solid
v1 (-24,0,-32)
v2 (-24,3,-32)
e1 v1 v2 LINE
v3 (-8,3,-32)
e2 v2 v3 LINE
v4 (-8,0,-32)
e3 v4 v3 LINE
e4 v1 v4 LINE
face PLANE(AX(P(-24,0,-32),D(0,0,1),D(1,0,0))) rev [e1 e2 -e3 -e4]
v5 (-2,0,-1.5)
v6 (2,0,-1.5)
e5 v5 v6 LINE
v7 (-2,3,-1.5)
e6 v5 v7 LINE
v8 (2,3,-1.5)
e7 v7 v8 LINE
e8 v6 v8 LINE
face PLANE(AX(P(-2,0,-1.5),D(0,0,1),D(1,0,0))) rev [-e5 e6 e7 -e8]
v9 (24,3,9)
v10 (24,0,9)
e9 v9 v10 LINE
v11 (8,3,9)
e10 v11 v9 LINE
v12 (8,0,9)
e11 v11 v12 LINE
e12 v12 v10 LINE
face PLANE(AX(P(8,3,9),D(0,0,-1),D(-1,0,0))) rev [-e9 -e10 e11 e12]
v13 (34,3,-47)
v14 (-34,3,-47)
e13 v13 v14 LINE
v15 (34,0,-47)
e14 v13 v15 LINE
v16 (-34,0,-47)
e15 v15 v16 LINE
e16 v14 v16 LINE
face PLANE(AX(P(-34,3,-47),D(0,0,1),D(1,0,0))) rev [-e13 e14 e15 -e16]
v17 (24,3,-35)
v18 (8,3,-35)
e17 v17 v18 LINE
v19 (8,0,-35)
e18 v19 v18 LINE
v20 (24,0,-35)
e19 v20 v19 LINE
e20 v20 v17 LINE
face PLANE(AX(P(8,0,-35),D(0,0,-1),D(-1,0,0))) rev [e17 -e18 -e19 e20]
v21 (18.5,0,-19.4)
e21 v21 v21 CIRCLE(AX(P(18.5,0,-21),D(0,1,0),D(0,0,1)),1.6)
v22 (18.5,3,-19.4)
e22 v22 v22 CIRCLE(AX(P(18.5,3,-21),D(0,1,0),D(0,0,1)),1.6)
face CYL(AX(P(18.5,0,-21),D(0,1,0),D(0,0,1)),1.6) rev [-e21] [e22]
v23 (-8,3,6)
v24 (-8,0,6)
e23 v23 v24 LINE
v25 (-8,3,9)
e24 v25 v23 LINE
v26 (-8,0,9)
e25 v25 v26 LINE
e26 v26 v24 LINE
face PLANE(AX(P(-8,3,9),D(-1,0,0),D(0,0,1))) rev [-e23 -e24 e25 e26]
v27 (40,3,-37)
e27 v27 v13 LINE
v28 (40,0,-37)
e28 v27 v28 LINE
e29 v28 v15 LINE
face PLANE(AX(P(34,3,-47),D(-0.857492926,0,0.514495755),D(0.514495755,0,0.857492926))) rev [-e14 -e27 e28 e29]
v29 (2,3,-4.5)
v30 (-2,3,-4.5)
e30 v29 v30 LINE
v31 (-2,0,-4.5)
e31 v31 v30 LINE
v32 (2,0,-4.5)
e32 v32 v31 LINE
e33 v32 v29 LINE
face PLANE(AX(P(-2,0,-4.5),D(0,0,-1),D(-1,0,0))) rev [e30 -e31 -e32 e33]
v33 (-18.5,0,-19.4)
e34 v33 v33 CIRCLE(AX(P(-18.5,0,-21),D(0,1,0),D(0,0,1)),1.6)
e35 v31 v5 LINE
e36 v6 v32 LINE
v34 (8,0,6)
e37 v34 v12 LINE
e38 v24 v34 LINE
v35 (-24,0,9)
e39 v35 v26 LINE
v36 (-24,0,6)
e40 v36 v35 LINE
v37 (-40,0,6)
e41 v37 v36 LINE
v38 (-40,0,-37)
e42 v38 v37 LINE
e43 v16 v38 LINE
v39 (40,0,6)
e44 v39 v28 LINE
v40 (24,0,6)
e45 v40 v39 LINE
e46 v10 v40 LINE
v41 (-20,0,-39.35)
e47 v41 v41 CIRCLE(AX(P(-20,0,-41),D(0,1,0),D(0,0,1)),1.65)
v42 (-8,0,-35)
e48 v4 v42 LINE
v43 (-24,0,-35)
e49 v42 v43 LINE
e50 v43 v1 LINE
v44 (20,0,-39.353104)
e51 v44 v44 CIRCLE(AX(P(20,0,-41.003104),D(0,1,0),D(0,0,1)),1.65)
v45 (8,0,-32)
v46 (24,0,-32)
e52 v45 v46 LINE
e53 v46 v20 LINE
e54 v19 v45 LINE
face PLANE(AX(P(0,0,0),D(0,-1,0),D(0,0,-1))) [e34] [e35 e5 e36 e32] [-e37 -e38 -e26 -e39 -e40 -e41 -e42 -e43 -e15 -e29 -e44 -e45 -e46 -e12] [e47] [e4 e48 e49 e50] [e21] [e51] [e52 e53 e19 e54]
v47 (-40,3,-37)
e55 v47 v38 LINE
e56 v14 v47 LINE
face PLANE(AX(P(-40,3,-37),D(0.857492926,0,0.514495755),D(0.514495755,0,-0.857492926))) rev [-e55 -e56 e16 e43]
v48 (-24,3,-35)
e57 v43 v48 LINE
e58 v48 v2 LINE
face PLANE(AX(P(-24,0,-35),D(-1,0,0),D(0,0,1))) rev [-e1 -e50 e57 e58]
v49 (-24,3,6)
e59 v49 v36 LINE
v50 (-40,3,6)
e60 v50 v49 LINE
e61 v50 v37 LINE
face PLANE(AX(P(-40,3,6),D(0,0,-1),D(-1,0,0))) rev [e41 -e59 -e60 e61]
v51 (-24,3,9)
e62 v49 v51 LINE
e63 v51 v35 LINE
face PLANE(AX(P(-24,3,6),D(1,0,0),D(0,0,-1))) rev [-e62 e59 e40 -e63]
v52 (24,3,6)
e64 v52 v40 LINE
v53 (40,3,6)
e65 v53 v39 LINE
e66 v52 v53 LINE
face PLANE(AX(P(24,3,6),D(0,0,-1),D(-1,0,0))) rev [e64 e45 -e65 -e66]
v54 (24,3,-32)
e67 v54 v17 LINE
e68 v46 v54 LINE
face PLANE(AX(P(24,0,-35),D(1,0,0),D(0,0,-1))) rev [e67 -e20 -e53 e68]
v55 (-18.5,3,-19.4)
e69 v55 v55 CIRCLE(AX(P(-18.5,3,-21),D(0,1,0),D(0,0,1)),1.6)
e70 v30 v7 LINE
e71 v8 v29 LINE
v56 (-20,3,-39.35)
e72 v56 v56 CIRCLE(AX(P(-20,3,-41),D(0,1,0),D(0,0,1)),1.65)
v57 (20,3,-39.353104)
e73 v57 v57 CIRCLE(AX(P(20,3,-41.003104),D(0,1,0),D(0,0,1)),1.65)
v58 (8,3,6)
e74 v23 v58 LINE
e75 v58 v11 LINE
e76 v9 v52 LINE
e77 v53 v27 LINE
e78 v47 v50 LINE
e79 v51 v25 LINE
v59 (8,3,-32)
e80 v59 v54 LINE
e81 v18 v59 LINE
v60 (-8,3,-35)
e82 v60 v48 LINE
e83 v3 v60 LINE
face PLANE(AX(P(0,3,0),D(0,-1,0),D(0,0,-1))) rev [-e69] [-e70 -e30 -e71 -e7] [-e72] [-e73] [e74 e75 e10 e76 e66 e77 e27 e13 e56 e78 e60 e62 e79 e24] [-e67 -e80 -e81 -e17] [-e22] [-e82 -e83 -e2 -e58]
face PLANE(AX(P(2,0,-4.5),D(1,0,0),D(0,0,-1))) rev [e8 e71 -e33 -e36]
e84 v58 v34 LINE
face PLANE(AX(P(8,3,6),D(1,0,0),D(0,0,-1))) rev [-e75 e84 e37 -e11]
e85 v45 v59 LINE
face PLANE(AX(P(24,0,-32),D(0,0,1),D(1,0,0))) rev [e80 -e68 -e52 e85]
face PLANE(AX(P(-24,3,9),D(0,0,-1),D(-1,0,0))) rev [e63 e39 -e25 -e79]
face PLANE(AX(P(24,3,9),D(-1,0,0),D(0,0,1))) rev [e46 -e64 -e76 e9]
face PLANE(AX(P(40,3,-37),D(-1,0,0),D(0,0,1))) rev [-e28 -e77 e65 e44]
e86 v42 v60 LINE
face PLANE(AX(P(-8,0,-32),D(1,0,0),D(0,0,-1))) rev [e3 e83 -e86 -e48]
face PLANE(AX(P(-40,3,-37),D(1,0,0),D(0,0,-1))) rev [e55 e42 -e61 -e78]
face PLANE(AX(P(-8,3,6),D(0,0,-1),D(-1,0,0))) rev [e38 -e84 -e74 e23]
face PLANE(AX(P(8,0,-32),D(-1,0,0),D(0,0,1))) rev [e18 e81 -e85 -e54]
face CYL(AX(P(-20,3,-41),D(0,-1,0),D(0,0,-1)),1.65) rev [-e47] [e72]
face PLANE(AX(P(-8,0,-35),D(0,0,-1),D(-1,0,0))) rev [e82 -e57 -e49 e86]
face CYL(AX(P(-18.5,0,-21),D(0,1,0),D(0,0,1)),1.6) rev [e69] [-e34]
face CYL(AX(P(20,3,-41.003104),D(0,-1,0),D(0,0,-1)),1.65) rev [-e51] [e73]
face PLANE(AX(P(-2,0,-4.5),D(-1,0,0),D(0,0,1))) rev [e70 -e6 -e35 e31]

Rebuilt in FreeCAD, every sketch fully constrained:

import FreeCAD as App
import Part
import Sketcher
from FreeCAD import Vector


def add_polygon(sketch, points):
    """Adds a closed chain of lines whose ends are joined by coincident constraints."""
    first, n = sketch.GeometryCount, len(points)
    for a, b in zip(points, points[1:] + points[:1]):
        sketch.addGeometry(Part.LineSegment(App.Vector(*a, 0), App.Vector(*b, 0)), False)
    for i in range(n):
        sketch.addConstraint(Sketcher.Constraint("Coincident", first + i, 2, first + (i + 1) % n, 1))

doc = App.newDocument("Part")
body = doc.addObject("PartDesign::Body", "Body")

# Sketch on XZ plane
sketch1 = body.newObject("Sketcher::SketchObject", "Sketch")
sketch1.AttachmentSupport = (doc.getObject("XZ_Plane"), [""])
sketch1.MapMode = "FlatFace"
add_polygon(sketch1, [(-34, -47), (-40, -37), (-40, 6), (-24, 6), (-24, 9), (-8, 9), (-8, 6), (8, 6), (8, 9), (24, 9), (24, 6), (40, 6), (40, -37), (34, -47)])  # lines 0-13
sketch1.addGeometry(Part.Circle(Vector(-20, -41, 0), Vector(0, 0, 1), 1.6), False)  # 14
sketch1.addGeometry(Part.Circle(Vector(20, -41, 0), Vector(0, 0, 1), 1.6), False)  # 15
sketch1.addConstraint([
    Sketcher.Constraint("Vertical", 1),
    Sketcher.Constraint("Horizontal", 2),
    Sketcher.Constraint("Vertical", 3),
    Sketcher.Constraint("Horizontal", 4),
    Sketcher.Constraint("Vertical", 5),
    Sketcher.Constraint("Horizontal", 6),
    Sketcher.Constraint("Vertical", 7),
    Sketcher.Constraint("Horizontal", 8),
    Sketcher.Constraint("Vertical", 9),
    Sketcher.Constraint("Horizontal", 10),
    Sketcher.Constraint("Vertical", 11),
    Sketcher.Constraint("Horizontal", 13),
    Sketcher.Constraint("Equal", 14, 15),
    Sketcher.Constraint("Symmetric", 4, 2, 7, 2, -2),
    Sketcher.Constraint("Symmetric", 2, 2, 9, 2, -2),
    Sketcher.Constraint("Symmetric", 0, 2, 11, 2, -2),
    Sketcher.Constraint("Horizontal", 2, 2, 5, 2),
    Sketcher.Constraint("Equal", 2, 4),
    Sketcher.Constraint("Equal", 4, 6),
    Sketcher.Constraint("Equal", 0, 12),
    Sketcher.Constraint("Diameter", 14, 3.3),
    Sketcher.Constraint("DistanceX", 2, 1, 2, 2, 16.0),
    Sketcher.Constraint("DistanceX", 13, 2, 13, 1, 68.0),
    Sketcher.Constraint("DistanceY", 1, 1, 1, 2, 43.0),
    Sketcher.Constraint("DistanceY", 3, 1, 3, 2, 3.0),
    Sketcher.Constraint("DistanceX", 14, 3, -1, 1, 20.0),
    Sketcher.Constraint("DistanceY", 14, 3, -1, 1, 41.0),
    Sketcher.Constraint("DistanceX", -1, 1, 15, 3, 20.0),
    Sketcher.Constraint("DistanceY", 0, 2, -1, 1, 37.0),
    Sketcher.Constraint("DistanceY", 12, 2, -1, 1, 47.0),
    Sketcher.Constraint("DistanceY", 15, 3, -1, 1, 41.003104),
])
pad1 = body.newObject("PartDesign::Pad", "Pad")
pad1.Profile = sketch1
pad1.Length = 3
pad1.Reversed = True

# Sketch on XZ plane
sketch2 = body.newObject("Sketcher::SketchObject", "Sketch001")
sketch2.AttachmentSupport = (doc.getObject("XZ_Plane"), [""])
sketch2.MapMode = "FlatFace"
sketch2.AttachmentOffset = App.Placement(Vector(0, 0, -3), App.Rotation())
sketch2.addGeometry(Part.Circle(Vector(-18.5, -21, 0), Vector(0, 0, 1), 1.6), False)  # 0
sketch2.addGeometry(Part.Circle(Vector(18.5, -21, 0), Vector(0, 0, 1), 1.6), False)  # 1
add_polygon(sketch2, [(-2, -4.5), (-2, -1.5), (2, -1.5), (2, -4.5)])  # lines 2-5
add_polygon(sketch2, [(-24, -35), (-24, -32), (-8, -32), (-8, -35)])  # lines 6-9
add_polygon(sketch2, [(8, -35), (8, -32), (24, -32), (24, -35)])  # lines 10-13
sketch2.addConstraint([
    Sketcher.Constraint("Vertical", 2),
    Sketcher.Constraint("Horizontal", 3),
    Sketcher.Constraint("Vertical", 4),
    Sketcher.Constraint("Horizontal", 5),
    Sketcher.Constraint("Vertical", 6),
    Sketcher.Constraint("Horizontal", 7),
    Sketcher.Constraint("Vertical", 8),
    Sketcher.Constraint("Horizontal", 9),
    Sketcher.Constraint("Vertical", 10),
    Sketcher.Constraint("Horizontal", 11),
    Sketcher.Constraint("Vertical", 12),
    Sketcher.Constraint("Horizontal", 13),
    Sketcher.Constraint("Equal", 0, 1),
    Sketcher.Constraint("Symmetric", 0, 3, 1, 3, -2),
    Sketcher.Constraint("Symmetric", 7, 2, 10, 2, -2),
    Sketcher.Constraint("Symmetric", 9, 2, 12, 2, -2),
    Sketcher.Constraint("Equal", 4, 6),
    Sketcher.Constraint("Diameter", 0, 3.2),
    Sketcher.Constraint("DistanceX", 3, 1, 3, 2, 4.0),
    Sketcher.Constraint("DistanceX", 7, 1, 7, 2, 16.0),
    Sketcher.Constraint("DistanceY", 2, 1, 2, 2, 3.0),
    Sketcher.Constraint("DistanceY", 0, 3, -1, 1, 21.0),
    Sketcher.Constraint("DistanceX", 2, 2, -1, 1, 2.0),
    Sketcher.Constraint("DistanceX", 6, 2, -1, 1, 24.0),
    Sketcher.Constraint("DistanceY", 6, 2, -1, 1, 32.0),
    Sketcher.Constraint("DistanceX", 0, 3, 1, 3, 37.0),
    Sketcher.Constraint("DistanceY", 2, 2, -1, 1, 1.5),
])
pocket1 = body.newObject("PartDesign::Pocket", "Pocket")
pocket1.Profile = sketch2
pocket1.Type = "ThroughAll"
pocket1.Reversed = True

doc.recompute()
